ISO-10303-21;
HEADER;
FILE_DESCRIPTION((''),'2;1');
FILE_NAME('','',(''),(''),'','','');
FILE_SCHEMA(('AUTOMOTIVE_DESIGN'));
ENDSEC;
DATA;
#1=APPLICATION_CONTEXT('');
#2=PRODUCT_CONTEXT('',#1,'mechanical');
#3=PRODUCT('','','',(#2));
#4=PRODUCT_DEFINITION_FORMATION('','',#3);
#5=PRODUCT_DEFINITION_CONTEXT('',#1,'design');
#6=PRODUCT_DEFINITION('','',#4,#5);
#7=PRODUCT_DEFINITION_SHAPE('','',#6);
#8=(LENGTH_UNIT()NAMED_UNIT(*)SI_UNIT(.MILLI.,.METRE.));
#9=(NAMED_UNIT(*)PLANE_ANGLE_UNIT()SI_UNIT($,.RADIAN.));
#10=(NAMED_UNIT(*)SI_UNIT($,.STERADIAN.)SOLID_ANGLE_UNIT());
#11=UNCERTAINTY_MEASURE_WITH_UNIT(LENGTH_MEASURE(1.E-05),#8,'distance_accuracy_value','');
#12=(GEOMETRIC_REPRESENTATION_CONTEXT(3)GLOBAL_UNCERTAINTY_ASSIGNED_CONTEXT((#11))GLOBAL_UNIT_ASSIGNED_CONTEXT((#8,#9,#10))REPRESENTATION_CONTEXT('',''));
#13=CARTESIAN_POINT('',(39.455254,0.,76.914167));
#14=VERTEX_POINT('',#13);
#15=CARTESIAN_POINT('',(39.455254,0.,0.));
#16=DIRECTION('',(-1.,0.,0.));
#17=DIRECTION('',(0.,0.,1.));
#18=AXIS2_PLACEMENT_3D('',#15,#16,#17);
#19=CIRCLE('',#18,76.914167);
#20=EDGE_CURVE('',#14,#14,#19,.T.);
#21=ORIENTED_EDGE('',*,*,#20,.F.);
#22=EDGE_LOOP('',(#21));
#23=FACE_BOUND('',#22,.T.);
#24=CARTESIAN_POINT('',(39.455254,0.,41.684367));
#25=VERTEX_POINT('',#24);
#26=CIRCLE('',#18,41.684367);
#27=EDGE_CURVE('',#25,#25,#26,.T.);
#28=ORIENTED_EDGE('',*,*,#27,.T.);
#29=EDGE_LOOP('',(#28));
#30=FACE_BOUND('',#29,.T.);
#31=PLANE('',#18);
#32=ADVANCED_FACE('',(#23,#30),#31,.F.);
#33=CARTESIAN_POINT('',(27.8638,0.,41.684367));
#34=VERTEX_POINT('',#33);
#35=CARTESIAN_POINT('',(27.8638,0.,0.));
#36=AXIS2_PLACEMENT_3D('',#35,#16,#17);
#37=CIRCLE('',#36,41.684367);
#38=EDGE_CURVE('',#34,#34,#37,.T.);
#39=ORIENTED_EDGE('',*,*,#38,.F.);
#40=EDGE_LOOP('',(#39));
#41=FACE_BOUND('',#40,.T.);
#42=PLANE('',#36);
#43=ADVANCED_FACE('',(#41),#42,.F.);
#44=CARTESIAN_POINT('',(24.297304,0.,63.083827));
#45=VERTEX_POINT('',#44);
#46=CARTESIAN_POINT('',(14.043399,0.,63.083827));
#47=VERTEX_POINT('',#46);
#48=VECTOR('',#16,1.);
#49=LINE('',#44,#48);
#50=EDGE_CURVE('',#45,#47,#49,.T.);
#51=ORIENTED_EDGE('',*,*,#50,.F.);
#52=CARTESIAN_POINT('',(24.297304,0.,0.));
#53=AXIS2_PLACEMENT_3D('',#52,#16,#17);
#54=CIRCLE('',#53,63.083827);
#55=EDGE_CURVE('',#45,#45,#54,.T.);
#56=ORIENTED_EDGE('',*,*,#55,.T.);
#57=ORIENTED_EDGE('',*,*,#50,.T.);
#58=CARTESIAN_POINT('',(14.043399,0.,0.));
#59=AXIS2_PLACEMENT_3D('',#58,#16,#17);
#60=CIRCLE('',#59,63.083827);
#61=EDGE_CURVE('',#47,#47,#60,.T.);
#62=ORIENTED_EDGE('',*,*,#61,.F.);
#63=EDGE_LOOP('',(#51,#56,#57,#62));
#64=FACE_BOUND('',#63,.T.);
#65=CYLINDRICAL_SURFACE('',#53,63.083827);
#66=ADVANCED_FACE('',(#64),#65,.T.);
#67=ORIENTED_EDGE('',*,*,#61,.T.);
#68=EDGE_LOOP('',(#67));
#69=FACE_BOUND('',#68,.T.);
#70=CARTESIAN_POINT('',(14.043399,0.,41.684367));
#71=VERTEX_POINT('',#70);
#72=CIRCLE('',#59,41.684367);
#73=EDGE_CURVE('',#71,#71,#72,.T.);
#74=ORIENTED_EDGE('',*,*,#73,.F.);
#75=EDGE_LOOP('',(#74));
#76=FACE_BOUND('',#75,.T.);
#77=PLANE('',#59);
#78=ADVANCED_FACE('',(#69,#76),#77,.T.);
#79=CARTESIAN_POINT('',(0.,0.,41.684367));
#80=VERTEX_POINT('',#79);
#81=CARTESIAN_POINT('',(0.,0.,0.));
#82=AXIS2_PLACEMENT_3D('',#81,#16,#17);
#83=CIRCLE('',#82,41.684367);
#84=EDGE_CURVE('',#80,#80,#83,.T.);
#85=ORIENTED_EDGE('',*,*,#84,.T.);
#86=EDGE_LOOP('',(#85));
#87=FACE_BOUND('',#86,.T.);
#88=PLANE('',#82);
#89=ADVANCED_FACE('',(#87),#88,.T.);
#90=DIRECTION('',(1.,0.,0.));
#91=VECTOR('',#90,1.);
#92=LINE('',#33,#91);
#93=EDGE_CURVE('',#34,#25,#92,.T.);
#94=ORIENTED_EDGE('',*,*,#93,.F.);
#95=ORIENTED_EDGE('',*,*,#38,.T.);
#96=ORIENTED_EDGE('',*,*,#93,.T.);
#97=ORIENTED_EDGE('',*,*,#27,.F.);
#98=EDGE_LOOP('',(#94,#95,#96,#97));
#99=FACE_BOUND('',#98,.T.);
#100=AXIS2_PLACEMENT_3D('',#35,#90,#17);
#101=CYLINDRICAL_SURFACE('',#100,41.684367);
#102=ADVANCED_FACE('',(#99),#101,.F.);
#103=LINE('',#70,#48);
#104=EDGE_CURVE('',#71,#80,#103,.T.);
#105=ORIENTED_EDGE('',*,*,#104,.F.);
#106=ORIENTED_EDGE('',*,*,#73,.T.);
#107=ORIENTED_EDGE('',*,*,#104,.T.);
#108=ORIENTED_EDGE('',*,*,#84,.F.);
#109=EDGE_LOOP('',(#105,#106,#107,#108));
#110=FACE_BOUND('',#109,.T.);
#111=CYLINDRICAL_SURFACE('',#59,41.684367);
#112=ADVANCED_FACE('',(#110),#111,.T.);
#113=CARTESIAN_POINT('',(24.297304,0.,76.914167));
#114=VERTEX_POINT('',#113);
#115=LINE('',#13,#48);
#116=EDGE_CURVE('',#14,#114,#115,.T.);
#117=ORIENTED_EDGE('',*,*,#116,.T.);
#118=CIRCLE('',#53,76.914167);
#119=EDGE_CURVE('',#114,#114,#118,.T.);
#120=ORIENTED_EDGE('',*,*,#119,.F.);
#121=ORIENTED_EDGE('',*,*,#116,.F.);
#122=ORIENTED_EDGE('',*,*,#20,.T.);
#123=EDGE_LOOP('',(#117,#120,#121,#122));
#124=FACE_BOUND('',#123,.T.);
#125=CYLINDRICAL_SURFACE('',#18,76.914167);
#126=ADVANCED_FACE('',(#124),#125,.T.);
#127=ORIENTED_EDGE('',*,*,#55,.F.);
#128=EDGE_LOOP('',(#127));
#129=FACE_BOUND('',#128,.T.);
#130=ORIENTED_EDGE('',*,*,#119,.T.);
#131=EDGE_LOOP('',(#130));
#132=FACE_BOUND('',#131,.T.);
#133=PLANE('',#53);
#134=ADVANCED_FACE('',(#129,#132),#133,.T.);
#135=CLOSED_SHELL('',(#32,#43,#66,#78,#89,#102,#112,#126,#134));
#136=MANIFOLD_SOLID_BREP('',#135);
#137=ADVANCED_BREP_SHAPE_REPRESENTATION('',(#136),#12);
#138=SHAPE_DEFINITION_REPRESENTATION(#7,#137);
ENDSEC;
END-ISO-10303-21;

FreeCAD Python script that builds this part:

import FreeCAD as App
import Part
import Sketcher
from FreeCAD import Vector
Q = App.Units.Quantity

doc = App.newDocument("Part")
params = doc.addObject("Spreadsheet::Sheet", "Params")
for row, (alias, value) in enumerate([
    ("sketch1_width", "1.097 in"),
    ("sketch1_height", "1.387 in"),
    ("revolution_angle", "360 deg"),
], start=1):
    params.set(f"A{row}", alias)
    params.set(f"B{row}", "=" + value)
    params.setAlias(f"B{row}", alias)

body = doc.addObject("PartDesign::Body", "Body")

# Sketch on XZ plane
sketch1 = doc.addObject("Sketcher::SketchObject", "Sketch")
body.addObject(sketch1)
sketch1.AttachmentSupport = (doc.XZ_Plane, [""])
sketch1.MapMode = "FlatFace"
sketch1.addGeometry([
    Part.LineSegment(Vector(0, 0, 0), Vector(28, 0, 0)),  # 0
    Part.LineSegment(Vector(28, 0, 0), Vector(28, 42, 0)),  # 1
    Part.LineSegment(Vector(28, 42, 0), Vector(39, 42, 0)),  # 2
    Part.LineSegment(Vector(39, 42, 0), Vector(39, 77, 0)),  # 3
    Part.LineSegment(Vector(39, 77, 0), Vector(24, 77, 0)),  # 4
    Part.LineSegment(Vector(24, 77, 0), Vector(24, 63, 0)),  # 5
    Part.LineSegment(Vector(24, 63, 0), Vector(14, 63, 0)),  # 6
    Part.LineSegment(Vector(14, 63, 0), Vector(14, 42, 0)),  # 7
    Part.LineSegment(Vector(14, 42, 0), Vector(0, 42, 0)),  # 8
    Part.LineSegment(Vector(0, 42, 0), Vector(0, 0, 0)),  # 9
], False)
sketch1.addConstraint([
    Sketcher.Constraint("Coincident", 0, 2, 1, 1),
    Sketcher.Constraint("Coincident", 1, 2, 2, 1),
    Sketcher.Constraint("Coincident", 2, 2, 3, 1),
    Sketcher.Constraint("Coincident", 3, 2, 4, 1),
    Sketcher.Constraint("Coincident", 4, 2, 5, 1),
    Sketcher.Constraint("Coincident", 5, 2, 6, 1),
    Sketcher.Constraint("Coincident", 6, 2, 7, 1),
    Sketcher.Constraint("Coincident", 7, 2, 8, 1),
    Sketcher.Constraint("Coincident", 8, 2, 9, 1),
    Sketcher.Constraint("Coincident", 9, 2, 0, 1),
    Sketcher.Constraint("Horizontal", 0),
    Sketcher.Constraint("Vertical", 1),
    Sketcher.Constraint("Horizontal", 2),
    Sketcher.Constraint("Vertical", 3),
    Sketcher.Constraint("Horizontal", 4),
    Sketcher.Constraint("Vertical", 5),
    Sketcher.Constraint("Horizontal", 6),
    Sketcher.Constraint("Vertical", 7),
    Sketcher.Constraint("Horizontal", 8),
    Sketcher.Constraint("Vertical", 9),
    Sketcher.Constraint("Coincident", 9, 2, -1, 1),
    Sketcher.Constraint("Horizontal", 2, 2, 7, 2),
    Sketcher.Constraint("DistanceX", 0, 1, 0, 2, Q("1.097 in")),
    Sketcher.Constraint("DistanceY", 3, 1, 3, 2, Q("1.387 in")),
    Sketcher.Constraint("DistanceX", 8, 2, 8, 1, Q("14.043399 mm")),
    Sketcher.Constraint("DistanceX", 4, 2, 4, 1, Q("15.15795 mm")),
    Sketcher.Constraint("DistanceY", 5, 2, 5, 1, Q("13.83034 mm")),
    Sketcher.Constraint("DistanceX", 2, 1, 2, 2, Q("11.591454 mm")),
    Sketcher.Constraint("DistanceY", 1, 1, 1, 2, Q("41.684367 mm")),
])
sketch1.setExpression("Constraints[22]", "Params.sketch1_width")
sketch1.setExpression("Constraints[23]", "Params.sketch1_height")
revolution = doc.addObject("PartDesign::Revolution", "Revolution")
body.addObject(revolution)
revolution.Profile = sketch1
revolution.ReferenceAxis = (sketch1, ["H_Axis"])
revolution.setExpression("Angle", "Params.revolution_angle")

doc.recompute()
